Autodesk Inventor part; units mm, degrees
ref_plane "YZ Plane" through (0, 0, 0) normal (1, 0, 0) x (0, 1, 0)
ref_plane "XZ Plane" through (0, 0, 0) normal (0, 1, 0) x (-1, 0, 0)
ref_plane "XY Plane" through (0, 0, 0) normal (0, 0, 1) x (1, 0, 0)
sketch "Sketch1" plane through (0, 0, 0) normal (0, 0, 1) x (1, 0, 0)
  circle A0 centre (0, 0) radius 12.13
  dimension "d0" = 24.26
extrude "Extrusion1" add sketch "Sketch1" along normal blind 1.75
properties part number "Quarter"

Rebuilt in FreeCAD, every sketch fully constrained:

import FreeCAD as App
import Part
import Sketcher
from FreeCAD import Vector
Q = App.Units.Quantity

doc = App.newDocument("Part")
body = doc.addObject("PartDesign::Body", "Body")

# Sketch on XY plane
sketch1 = doc.addObject("Sketcher::SketchObject", "Sketch")
body.addObject(sketch1)
sketch1.AttachmentSupport = (doc.XY_Plane, [""])
sketch1.MapMode = "FlatFace"
sketch1.addGeometry(Part.Circle(Vector(0, 0, 0), Vector(0, 0, 1), 12), False)
sketch1.addConstraint([
    Sketcher.Constraint("Coincident", 0, 3, -1, 1),
    Sketcher.Constraint("Diameter", 0, Q("24.26 mm")),
])
pad1 = doc.addObject("PartDesign::Pad", "Pad")
body.addObject(pad1)
pad1.Profile = sketch1
pad1.Length = 1.75

doc.recompute()
